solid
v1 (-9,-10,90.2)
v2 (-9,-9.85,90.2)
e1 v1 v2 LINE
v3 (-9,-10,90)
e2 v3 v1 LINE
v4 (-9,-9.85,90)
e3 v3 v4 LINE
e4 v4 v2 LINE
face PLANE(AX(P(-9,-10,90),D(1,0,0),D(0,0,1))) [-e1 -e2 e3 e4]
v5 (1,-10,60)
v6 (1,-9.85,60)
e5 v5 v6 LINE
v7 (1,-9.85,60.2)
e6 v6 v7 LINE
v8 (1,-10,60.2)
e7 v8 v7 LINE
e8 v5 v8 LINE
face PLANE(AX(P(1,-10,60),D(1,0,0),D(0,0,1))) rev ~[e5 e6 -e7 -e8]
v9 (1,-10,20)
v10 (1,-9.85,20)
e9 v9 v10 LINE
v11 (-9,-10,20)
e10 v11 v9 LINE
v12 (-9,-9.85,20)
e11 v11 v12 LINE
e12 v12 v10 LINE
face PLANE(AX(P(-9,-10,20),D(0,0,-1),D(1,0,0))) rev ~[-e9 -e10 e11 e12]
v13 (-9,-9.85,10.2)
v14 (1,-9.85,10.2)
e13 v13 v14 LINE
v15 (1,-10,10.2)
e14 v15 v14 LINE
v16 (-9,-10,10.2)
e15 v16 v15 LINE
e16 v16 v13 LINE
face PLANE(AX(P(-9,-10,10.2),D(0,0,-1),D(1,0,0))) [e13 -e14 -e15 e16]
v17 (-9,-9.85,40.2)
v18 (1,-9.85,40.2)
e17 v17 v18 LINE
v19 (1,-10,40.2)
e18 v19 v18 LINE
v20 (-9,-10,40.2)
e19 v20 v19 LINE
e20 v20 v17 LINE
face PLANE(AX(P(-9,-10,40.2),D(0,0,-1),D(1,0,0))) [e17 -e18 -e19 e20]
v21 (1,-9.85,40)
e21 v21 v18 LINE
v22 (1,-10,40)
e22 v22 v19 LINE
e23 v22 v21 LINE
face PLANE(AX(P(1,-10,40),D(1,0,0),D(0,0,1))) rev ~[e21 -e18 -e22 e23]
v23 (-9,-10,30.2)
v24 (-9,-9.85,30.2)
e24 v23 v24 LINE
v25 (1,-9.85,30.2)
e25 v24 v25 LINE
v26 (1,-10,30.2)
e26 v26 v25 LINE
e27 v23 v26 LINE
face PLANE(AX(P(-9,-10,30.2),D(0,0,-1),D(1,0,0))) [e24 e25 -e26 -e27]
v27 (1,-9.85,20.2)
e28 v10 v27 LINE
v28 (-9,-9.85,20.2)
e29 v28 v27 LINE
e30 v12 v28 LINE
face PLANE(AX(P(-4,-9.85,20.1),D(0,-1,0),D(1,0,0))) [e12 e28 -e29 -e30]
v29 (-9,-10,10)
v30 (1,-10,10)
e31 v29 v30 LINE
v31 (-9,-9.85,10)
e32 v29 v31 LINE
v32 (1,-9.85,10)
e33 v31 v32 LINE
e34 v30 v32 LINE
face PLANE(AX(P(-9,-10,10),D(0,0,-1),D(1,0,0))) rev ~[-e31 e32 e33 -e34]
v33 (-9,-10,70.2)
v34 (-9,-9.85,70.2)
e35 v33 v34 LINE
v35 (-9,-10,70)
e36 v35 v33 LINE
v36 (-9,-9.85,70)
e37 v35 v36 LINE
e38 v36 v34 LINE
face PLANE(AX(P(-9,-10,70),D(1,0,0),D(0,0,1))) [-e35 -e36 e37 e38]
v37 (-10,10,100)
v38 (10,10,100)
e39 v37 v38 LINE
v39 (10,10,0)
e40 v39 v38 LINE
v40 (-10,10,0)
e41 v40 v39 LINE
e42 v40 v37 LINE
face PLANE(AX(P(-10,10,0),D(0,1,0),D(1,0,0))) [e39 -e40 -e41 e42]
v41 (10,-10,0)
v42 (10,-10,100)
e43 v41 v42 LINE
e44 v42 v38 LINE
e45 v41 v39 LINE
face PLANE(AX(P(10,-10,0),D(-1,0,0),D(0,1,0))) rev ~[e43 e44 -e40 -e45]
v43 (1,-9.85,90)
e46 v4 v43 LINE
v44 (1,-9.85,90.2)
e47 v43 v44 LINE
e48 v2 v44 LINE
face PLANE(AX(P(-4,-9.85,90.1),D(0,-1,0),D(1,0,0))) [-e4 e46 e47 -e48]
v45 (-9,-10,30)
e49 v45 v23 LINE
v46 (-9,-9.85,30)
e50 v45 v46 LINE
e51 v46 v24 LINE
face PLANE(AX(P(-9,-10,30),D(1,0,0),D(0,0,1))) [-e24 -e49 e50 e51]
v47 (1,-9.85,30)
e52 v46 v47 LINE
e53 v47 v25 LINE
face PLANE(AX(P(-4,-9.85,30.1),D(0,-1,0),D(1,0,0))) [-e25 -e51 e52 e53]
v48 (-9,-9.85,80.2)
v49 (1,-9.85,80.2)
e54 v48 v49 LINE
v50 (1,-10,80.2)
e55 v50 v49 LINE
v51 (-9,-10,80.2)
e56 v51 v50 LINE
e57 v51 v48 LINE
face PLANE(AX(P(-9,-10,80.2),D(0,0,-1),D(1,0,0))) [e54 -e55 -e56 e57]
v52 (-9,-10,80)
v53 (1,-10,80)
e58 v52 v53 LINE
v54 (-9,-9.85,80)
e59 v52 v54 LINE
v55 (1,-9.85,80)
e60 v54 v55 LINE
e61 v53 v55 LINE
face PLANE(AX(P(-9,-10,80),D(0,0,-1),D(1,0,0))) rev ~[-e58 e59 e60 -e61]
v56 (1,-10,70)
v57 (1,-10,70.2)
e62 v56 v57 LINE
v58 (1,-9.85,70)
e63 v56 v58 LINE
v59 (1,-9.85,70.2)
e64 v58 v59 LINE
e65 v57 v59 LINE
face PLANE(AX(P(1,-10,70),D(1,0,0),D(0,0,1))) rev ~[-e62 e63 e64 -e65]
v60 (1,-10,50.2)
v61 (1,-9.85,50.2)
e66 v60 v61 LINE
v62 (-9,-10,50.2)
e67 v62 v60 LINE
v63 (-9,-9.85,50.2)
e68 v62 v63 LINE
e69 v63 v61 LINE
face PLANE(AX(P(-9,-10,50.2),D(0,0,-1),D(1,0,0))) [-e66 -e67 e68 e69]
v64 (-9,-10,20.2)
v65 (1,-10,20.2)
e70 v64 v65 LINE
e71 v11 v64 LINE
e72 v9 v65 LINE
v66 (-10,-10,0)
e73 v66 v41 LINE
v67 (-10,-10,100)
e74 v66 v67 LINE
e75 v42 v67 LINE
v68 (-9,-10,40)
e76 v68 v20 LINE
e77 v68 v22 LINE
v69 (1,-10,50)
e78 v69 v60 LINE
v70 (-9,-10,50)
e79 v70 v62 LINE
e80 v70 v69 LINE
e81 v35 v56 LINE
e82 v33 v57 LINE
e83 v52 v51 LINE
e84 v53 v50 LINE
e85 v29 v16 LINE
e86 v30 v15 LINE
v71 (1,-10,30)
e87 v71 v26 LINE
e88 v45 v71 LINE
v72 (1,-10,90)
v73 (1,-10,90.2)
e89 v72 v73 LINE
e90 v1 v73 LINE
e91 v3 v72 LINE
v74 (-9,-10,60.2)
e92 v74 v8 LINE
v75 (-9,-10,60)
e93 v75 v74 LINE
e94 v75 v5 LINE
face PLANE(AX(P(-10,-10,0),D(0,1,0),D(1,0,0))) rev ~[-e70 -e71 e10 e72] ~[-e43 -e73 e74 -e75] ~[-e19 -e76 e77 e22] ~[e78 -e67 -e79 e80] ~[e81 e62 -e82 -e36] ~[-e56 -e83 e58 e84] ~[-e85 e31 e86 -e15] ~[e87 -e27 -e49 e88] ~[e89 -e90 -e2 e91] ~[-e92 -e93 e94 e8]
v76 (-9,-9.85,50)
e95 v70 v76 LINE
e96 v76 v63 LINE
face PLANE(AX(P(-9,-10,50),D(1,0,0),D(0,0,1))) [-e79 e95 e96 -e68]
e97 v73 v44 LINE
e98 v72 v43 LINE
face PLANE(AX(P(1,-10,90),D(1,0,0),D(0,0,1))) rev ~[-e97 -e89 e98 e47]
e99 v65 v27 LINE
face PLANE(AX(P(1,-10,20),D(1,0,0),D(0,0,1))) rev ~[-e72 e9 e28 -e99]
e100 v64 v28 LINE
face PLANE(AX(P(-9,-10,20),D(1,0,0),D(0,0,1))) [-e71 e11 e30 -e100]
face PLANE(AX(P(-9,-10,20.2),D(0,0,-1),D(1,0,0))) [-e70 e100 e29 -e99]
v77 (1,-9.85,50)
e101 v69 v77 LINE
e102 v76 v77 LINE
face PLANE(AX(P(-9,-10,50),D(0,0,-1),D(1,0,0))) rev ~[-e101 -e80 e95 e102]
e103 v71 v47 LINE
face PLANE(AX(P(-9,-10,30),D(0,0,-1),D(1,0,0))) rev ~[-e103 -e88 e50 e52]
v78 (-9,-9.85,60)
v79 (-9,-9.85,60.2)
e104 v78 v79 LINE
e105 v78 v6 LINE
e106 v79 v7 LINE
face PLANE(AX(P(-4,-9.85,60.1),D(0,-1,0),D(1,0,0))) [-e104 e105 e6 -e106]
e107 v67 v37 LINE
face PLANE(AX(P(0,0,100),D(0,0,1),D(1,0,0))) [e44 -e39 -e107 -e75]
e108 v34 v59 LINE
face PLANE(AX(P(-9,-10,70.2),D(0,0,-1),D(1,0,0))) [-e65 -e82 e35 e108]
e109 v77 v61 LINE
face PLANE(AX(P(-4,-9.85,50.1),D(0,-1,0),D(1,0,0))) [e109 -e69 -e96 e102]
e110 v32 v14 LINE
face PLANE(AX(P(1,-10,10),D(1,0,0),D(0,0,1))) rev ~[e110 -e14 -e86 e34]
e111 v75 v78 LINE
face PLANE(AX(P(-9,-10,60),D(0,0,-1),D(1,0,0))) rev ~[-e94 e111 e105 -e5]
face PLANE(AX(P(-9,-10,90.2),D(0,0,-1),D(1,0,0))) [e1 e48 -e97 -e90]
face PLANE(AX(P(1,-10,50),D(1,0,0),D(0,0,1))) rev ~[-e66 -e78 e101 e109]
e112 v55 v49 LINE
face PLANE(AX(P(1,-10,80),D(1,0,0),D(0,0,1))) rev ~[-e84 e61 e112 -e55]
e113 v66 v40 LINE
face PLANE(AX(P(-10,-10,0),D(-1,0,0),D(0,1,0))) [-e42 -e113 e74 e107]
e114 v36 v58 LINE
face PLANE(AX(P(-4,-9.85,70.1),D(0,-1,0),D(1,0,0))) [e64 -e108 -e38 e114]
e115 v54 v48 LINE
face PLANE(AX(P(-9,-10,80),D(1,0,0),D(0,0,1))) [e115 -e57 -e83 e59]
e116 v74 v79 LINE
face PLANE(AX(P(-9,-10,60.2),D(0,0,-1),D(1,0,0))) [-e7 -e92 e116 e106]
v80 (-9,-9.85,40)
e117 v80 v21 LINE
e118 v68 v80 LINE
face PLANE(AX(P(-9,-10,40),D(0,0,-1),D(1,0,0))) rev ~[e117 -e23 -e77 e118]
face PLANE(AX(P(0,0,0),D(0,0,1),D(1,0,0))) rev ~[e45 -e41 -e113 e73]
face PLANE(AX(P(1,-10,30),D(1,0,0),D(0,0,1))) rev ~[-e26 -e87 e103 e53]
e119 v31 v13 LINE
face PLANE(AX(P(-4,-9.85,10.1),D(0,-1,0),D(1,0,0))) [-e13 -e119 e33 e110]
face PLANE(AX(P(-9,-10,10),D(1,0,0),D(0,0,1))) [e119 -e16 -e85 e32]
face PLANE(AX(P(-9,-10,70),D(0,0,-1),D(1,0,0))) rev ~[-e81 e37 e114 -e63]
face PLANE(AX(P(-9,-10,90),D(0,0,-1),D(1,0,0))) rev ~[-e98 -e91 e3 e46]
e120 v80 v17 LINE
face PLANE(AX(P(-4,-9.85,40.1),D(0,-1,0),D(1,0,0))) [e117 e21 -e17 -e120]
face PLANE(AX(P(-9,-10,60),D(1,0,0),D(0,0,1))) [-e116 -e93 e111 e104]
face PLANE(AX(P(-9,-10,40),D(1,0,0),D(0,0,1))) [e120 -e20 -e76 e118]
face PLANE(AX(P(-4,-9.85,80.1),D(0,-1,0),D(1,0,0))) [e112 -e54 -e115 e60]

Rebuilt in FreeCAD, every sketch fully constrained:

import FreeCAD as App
import Part
import Sketcher


def add_polygon(sketch, points):
    """Adds a closed chain of lines whose ends are joined by coincident constraints."""
    first, n = sketch.GeometryCount, len(points)
    for a, b in zip(points, points[1:] + points[:1]):
        sketch.addGeometry(Part.LineSegment(App.Vector(*a, 0), App.Vector(*b, 0)), False)
    for i in range(n):
        sketch.addConstraint(Sketcher.Constraint("Coincident", first + i, 2, first + (i + 1) % n, 1))

doc = App.newDocument("Part")
body = doc.addObject("PartDesign::Body", "Body")

sketch1 = body.newObject("Sketcher::SketchObject", "Sketch")
sketch1.AttachmentSupport = (doc.getObject("XY_Plane"), [""])
sketch1.MapMode = "FlatFace"
add_polygon(sketch1, [(-10, 10), (-10, -10), (10, -10), (10, 10)])
sketch1.addConstraint([
    Sketcher.Constraint("Vertical", 0),
    Sketcher.Constraint("Horizontal", 1),
    Sketcher.Constraint("Vertical", 2),
    Sketcher.Constraint("Horizontal", 3),
    Sketcher.Constraint("Symmetric", 0, 2, 2, 2, -1, 1),
    Sketcher.Constraint("Equal", 3, 0),
    Sketcher.Constraint("DistanceX", 1, 1, 1, 2, 20.0),
])
pad1 = body.newObject("PartDesign::Pad", "Pad")
pad1.Profile = sketch1
pad1.Length = 100

sketch2 = body.newObject("Sketcher::SketchObject", "Sketch001")
sketch2.AttachmentSupport = (doc.getObject("XZ_Plane"), [""])
sketch2.MapMode = "FlatFace"
sketch2.AttachmentOffset = App.Placement(App.Vector(0, 0, 10), App.Rotation())
add_polygon(sketch2, [(-9, 10.2), (-9, 10), (1, 10), (1, 10.2)])
add_polygon(sketch2, [(-9, 20.2), (-9, 20), (1, 20), (1, 20.2)])
add_polygon(sketch2, [(-9, 30.2), (-9, 30), (1, 30), (1, 30.2)])
add_polygon(sketch2, [(-9, 40.2), (-9, 40), (1, 40), (1, 40.2)])
add_polygon(sketch2, [(-9, 50.2), (-9, 50), (1, 50), (1, 50.2)])
add_polygon(sketch2, [(-9, 60.2), (-9, 60), (1, 60), (1, 60.2)])
add_polygon(sketch2, [(-9, 70.2), (-9, 70), (1, 70), (1, 70.2)])
add_polygon(sketch2, [(-9, 80.2), (-9, 80), (1, 80), (1, 80.2)])
add_polygon(sketch2, [(-9, 90.2), (-9, 90), (1, 90), (1, 90.2)])
add_polygon(sketch2, [(-9, 100.2), (-9, 100), (1, 100), (1, 100.2)])
sketch2.addConstraint([
    Sketcher.Constraint("Vertical", 0),
    Sketcher.Constraint("Horizontal", 1),
    Sketcher.Constraint("Vertical", 2),
    Sketcher.Constraint("Horizontal", 3),
    Sketcher.Constraint("Vertical", 4),
    Sketcher.Constraint("Horizontal", 5),
    Sketcher.Constraint("Vertical", 6),
    Sketcher.Constraint("Horizontal", 7),
    Sketcher.Constraint("Vertical", 8),
    Sketcher.Constraint("Horizontal", 9),
    Sketcher.Constraint("Vertical", 10),
    Sketcher.Constraint("Horizontal", 11),
    Sketcher.Constraint("Vertical", 12),
    Sketcher.Constraint("Horizontal", 13),
    Sketcher.Constraint("Vertical", 14),
    Sketcher.Constraint("Horizontal", 15),
    Sketcher.Constraint("Vertical", 16),
    Sketcher.Constraint("Horizontal", 17),
    Sketcher.Constraint("Vertical", 18),
    Sketcher.Constraint("Horizontal", 19),
    Sketcher.Constraint("Vertical", 20),
    Sketcher.Constraint("Horizontal", 21),
    Sketcher.Constraint("Vertical", 22),
    Sketcher.Constraint("Horizontal", 23),
    Sketcher.Constraint("Vertical", 24),
    Sketcher.Constraint("Horizontal", 25),
    Sketcher.Constraint("Vertical", 26),
    Sketcher.Constraint("Horizontal", 27),
    Sketcher.Constraint("Vertical", 28),
    Sketcher.Constraint("Horizontal", 29),
    Sketcher.Constraint("Vertical", 30),
    Sketcher.Constraint("Horizontal", 31),
    Sketcher.Constraint("Vertical", 32),
    Sketcher.Constraint("Horizontal", 33),
    Sketcher.Constraint("Vertical", 34),
    Sketcher.Constraint("Horizontal", 35),
    Sketcher.Constraint("Vertical", 36),
    Sketcher.Constraint("Horizontal", 37),
    Sketcher.Constraint("Vertical", 38),
    Sketcher.Constraint("Horizontal", 39),
    Sketcher.Constraint("Vertical", 3, 2, 4, 2),
    Sketcher.Constraint("Vertical", 2, 2, 5, 2),
    Sketcher.Constraint("Vertical", 7, 2, 8, 2),
    Sketcher.Constraint("Vertical", 6, 2, 9, 2),
    Sketcher.Constraint("Vertical", 11, 2, 12, 2),
    Sketcher.Constraint("Vertical", 10, 2, 13, 2),
    Sketcher.Constraint("Vertical", 15, 2, 16, 2),
    Sketcher.Constraint("Vertical", 14, 2, 17, 2),
    Sketcher.Constraint("Vertical", 19, 2, 20, 2),
    Sketcher.Constraint("Vertical", 18, 2, 21, 2),
    Sketcher.Constraint("Vertical", 23, 2, 24, 2),
    Sketcher.Constraint("Vertical", 22, 2, 25, 2),
    Sketcher.Constraint("Vertical", 27, 2, 28, 2),
    Sketcher.Constraint("Vertical", 26, 2, 29, 2),
    Sketcher.Constraint("Vertical", 31, 2, 32, 2),
    Sketcher.Constraint("Vertical", 30, 2, 33, 2),
    Sketcher.Constraint("Vertical", 35, 2, 36, 2),
    Sketcher.Constraint("Vertical", 34, 2, 37, 2),
    Sketcher.Constraint("Equal", 2, 4),
    Sketcher.Constraint("Equal", 6, 8),
    Sketcher.Constraint("Equal", 10, 12),
    Sketcher.Constraint("Equal", 14, 16),
    Sketcher.Constraint("Equal", 18, 20),
    Sketcher.Constraint("Equal", 22, 24),
    Sketcher.Constraint("Equal", 26, 28),
    Sketcher.Constraint("Equal", 30, 32),
    Sketcher.Constraint("Equal", 34, 36),
    Sketcher.Constraint("DistanceX", 1, 1, 1, 2, 10.0),
    Sketcher.Constraint("DistanceY", 0, 2, 0, 1, 0.2),
    Sketcher.Constraint("DistanceX", 0, 2, -1, 1, 9.0),
    Sketcher.Constraint("DistanceY", -1, 1, 0, 2, 10.0),
    Sketcher.Constraint("DistanceY", -1, 1, 4, 2, 20.0),
    Sketcher.Constraint("DistanceY", -1, 1, 8, 2, 30.0),
    Sketcher.Constraint("DistanceY", -1, 1, 12, 2, 40.0),
    Sketcher.Constraint("DistanceY", -1, 1, 16, 2, 50.0),
    Sketcher.Constraint("DistanceY", -1, 1, 20, 2, 60.0),
    Sketcher.Constraint("DistanceY", -1, 1, 24, 2, 70.0),
    Sketcher.Constraint("DistanceY", -1, 1, 28, 2, 80.0),
    Sketcher.Constraint("DistanceY", -1, 1, 32, 2, 90.0),
    Sketcher.Constraint("DistanceY", -1, 1, 36, 2, 100.0),
])
pocket1 = body.newObject("PartDesign::Pocket", "Pocket")
pocket1.Profile = sketch2
pocket1.Length = 0.15

doc.recompute()
